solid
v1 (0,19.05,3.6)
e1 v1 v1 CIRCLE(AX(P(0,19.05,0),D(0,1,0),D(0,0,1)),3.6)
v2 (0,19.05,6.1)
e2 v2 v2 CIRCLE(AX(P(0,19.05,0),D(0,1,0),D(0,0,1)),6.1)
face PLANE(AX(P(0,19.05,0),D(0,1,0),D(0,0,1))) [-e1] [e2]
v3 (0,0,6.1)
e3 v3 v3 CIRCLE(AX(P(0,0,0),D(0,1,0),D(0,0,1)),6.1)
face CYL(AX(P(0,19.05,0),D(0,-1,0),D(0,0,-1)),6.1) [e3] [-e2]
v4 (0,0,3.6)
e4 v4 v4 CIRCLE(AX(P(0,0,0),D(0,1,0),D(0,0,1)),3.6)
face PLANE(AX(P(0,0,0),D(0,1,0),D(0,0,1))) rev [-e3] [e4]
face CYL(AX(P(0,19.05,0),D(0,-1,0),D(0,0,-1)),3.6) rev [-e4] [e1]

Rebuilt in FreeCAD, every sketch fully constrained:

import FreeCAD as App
import Part
import Sketcher
from FreeCAD import Vector
Q = App.Units.Quantity

doc = App.newDocument("Part")
body = doc.addObject("PartDesign::Body", "Body")

sketch1 = body.newObject("Sketcher::SketchObject", "Sketch")
sketch1.AttachmentSupport = (doc.getObject("XZ_Plane"), [""])
sketch1.MapMode = "FlatFace"
sketch1.addGeometry([
    Part.Circle(Vector(0, 0, 0), Vector(0, 0, 1), 6.1),
    Part.Circle(Vector(0, 0, 0), Vector(0, 0, 1), 3.6),
], False)
sketch1.addConstraint([
    Sketcher.Constraint("Coincident", 0, 3, -1, 1),
    Sketcher.Constraint("Coincident", 1, 3, -1, 1),
    Sketcher.Constraint("Diameter", 0, Q("12.2 mm")),
    Sketcher.Constraint("Diameter", 1, Q("7.2 mm")),
])
pad1 = body.newObject("PartDesign::Pad", "Pad")
pad1.Profile = sketch1
pad1.Length = 19.05
pad1.Reversed = True

doc.recompute()
